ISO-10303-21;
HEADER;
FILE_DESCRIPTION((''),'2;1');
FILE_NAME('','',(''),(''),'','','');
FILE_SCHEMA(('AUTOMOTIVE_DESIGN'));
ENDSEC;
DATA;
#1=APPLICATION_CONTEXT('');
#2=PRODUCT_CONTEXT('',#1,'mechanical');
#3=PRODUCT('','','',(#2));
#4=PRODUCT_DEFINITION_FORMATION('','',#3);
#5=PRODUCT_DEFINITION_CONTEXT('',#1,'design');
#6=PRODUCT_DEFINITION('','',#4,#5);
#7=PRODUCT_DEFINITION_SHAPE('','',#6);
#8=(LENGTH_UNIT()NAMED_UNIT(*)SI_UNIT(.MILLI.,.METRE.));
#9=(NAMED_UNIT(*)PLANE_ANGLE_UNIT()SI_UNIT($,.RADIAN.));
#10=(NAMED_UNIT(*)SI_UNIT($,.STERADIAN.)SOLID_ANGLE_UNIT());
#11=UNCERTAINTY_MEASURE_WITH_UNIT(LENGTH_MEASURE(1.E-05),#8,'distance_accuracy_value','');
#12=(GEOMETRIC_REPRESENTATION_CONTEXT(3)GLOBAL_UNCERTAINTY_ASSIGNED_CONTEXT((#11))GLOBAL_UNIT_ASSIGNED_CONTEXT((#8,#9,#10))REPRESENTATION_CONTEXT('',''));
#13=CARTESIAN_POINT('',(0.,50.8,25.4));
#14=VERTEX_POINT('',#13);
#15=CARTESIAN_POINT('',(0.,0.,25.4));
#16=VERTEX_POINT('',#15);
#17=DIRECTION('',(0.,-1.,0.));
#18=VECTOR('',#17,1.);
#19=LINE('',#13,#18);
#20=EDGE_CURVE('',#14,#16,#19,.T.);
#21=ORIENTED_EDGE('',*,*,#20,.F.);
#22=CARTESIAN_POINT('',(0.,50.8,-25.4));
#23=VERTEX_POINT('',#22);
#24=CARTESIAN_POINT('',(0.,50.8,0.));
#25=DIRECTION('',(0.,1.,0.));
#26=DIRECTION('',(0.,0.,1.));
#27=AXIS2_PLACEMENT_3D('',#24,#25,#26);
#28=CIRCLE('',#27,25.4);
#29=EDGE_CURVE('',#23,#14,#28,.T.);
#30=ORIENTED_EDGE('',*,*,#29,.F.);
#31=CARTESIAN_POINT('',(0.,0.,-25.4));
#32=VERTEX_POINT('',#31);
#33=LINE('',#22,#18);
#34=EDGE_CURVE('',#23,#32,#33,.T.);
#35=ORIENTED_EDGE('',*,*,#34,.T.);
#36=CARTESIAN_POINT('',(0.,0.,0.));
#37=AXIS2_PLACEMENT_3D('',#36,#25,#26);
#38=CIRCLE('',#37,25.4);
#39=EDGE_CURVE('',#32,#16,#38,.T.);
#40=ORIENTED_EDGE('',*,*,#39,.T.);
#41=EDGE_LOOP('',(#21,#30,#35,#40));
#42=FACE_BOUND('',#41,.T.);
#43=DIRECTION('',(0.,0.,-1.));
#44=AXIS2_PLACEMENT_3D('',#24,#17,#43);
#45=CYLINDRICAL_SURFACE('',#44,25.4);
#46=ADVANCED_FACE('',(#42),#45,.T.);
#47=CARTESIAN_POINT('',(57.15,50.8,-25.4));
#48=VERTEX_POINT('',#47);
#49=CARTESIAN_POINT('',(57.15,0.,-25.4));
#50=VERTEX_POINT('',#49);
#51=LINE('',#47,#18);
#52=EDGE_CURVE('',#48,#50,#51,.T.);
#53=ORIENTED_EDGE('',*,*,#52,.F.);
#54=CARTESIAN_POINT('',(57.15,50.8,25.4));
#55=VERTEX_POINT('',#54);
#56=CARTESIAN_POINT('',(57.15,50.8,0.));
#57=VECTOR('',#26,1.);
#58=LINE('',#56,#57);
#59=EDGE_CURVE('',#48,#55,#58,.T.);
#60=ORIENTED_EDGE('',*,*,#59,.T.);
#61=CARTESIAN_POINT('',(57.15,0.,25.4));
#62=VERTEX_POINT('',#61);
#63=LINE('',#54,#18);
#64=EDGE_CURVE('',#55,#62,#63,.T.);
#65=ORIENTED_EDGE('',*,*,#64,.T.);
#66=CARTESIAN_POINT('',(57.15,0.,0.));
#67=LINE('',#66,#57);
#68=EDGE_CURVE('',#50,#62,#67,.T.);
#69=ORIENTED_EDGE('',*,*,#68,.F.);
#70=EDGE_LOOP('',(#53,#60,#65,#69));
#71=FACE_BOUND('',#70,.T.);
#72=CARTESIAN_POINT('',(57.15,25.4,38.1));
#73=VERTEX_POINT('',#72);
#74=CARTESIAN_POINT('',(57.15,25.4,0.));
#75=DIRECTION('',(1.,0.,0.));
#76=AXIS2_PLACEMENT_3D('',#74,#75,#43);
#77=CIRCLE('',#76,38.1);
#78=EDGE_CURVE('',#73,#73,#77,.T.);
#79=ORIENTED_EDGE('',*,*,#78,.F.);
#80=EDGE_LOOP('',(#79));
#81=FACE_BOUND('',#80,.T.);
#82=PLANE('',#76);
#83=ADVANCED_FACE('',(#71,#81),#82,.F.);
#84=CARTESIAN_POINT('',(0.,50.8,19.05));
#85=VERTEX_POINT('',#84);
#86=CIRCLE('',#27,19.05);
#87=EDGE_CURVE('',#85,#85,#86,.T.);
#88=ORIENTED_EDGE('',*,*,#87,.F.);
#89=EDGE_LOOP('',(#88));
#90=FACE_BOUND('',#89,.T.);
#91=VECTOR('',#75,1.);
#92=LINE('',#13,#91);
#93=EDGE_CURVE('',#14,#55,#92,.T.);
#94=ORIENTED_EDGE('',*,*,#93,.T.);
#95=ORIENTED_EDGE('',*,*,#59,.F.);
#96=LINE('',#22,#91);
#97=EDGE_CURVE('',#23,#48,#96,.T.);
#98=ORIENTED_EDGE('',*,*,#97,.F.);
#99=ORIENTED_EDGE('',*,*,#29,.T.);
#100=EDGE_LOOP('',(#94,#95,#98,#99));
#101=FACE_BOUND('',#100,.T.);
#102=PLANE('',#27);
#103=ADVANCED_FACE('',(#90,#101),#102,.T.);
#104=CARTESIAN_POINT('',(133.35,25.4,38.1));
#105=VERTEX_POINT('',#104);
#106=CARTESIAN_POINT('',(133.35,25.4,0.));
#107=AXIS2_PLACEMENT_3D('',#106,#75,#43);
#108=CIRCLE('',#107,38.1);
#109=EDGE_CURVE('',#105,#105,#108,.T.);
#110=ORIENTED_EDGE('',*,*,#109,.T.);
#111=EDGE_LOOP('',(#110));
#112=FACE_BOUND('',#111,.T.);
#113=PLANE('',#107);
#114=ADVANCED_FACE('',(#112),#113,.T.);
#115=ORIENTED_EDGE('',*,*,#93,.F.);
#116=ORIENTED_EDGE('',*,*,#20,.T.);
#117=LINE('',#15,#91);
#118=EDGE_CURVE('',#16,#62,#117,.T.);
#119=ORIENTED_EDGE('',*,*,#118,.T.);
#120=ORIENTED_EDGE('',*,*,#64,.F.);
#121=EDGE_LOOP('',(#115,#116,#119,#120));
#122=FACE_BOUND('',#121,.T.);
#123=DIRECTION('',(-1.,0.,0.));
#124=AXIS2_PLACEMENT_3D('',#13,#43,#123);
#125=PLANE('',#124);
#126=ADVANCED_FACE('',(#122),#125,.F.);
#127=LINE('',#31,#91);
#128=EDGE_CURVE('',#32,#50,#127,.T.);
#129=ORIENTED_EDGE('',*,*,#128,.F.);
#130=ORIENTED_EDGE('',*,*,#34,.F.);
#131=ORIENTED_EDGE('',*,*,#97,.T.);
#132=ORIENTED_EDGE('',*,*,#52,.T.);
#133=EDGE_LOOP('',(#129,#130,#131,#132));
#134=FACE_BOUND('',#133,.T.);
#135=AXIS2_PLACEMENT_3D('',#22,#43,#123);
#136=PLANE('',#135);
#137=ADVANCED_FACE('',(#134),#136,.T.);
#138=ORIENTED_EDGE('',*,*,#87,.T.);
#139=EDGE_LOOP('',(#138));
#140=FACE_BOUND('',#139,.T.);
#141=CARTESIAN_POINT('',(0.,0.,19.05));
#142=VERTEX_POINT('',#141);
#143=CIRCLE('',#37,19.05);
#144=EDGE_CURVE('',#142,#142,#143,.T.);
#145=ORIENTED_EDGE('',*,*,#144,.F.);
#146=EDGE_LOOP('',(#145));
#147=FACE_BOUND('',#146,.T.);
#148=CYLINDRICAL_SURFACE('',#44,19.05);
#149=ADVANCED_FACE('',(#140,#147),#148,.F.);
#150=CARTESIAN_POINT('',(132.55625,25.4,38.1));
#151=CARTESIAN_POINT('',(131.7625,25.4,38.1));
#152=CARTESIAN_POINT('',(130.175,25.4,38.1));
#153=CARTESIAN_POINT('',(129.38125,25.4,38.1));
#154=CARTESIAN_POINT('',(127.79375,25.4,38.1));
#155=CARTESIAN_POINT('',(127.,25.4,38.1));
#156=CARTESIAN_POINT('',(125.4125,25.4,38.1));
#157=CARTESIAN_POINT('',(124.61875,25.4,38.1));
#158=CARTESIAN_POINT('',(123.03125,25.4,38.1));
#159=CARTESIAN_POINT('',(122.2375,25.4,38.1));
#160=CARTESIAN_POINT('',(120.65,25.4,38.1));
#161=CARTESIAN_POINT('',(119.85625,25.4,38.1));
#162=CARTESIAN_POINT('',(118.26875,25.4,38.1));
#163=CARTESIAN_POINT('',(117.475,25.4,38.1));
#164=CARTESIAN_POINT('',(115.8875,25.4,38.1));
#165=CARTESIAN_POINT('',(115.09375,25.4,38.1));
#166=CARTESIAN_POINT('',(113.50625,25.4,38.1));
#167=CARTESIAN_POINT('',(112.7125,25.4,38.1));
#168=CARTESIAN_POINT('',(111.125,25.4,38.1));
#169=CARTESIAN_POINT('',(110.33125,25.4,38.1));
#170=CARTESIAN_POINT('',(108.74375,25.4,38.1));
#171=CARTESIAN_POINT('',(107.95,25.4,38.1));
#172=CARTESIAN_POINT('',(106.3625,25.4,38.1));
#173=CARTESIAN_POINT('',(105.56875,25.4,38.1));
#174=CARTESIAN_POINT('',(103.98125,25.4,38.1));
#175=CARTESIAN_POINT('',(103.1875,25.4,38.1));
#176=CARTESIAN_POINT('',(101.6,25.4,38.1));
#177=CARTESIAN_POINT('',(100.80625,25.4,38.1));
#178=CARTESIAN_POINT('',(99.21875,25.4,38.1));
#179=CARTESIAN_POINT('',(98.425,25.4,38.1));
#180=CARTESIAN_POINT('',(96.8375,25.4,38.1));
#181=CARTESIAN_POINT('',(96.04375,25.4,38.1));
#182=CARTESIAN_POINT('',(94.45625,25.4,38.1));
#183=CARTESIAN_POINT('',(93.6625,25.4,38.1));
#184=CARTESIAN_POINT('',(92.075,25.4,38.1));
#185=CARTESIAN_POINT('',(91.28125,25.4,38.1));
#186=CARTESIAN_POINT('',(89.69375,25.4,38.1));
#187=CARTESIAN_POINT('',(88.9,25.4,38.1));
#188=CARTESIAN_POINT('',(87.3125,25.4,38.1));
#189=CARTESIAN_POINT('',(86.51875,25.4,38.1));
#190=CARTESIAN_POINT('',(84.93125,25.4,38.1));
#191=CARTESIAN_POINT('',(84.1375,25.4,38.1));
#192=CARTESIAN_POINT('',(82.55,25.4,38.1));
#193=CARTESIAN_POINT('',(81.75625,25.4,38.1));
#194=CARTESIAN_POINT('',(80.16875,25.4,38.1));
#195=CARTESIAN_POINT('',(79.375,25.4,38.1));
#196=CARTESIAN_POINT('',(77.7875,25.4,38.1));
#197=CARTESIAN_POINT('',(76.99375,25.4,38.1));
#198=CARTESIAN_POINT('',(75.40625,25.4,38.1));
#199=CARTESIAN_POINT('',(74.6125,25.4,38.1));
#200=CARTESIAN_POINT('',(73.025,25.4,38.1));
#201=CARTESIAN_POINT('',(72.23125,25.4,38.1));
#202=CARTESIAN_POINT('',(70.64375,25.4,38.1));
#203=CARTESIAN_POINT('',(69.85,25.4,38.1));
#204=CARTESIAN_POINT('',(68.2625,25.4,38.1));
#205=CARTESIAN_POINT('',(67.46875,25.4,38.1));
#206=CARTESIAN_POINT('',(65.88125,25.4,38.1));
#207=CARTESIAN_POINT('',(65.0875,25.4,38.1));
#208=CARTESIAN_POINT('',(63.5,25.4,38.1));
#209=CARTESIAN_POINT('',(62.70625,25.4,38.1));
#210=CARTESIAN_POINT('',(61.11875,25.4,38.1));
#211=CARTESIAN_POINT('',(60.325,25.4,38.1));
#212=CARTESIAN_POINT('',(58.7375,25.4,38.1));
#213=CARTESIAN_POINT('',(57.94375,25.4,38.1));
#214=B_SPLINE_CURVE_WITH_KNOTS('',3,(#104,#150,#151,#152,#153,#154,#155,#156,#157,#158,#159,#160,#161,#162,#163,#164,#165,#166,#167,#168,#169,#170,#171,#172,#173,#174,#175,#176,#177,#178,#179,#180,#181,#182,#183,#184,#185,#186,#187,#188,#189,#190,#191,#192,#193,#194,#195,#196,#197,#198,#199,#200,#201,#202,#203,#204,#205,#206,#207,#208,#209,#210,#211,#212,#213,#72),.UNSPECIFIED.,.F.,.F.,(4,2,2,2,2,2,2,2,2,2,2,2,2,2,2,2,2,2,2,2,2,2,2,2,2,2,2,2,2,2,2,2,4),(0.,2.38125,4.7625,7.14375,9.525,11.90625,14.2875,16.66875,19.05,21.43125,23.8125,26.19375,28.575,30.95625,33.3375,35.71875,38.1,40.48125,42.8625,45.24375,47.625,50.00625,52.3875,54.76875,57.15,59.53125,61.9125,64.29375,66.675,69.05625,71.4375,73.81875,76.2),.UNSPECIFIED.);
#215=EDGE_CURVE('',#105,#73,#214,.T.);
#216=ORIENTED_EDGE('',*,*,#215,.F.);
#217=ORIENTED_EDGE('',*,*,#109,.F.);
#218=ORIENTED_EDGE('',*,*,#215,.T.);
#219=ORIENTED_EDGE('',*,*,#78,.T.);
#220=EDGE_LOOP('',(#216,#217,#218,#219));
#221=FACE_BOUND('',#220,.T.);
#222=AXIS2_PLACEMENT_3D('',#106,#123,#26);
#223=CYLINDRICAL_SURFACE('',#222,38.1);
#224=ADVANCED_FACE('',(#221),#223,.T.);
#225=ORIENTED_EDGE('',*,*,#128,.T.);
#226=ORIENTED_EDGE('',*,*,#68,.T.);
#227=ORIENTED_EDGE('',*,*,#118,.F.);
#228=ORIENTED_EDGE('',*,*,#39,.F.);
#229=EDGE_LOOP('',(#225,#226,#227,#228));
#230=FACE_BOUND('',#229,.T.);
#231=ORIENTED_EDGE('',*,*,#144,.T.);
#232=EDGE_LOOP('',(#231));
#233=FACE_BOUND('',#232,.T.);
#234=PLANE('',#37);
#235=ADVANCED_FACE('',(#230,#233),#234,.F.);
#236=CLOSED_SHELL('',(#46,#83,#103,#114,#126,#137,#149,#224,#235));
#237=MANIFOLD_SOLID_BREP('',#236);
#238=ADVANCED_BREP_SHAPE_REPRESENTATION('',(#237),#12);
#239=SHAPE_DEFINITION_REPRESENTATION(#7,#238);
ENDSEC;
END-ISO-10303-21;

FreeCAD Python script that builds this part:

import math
import FreeCAD as App
import Part
import Sketcher
Q = App.Units.Quantity

doc = App.newDocument("Part")
body = doc.addObject("PartDesign::Body", "Body")

sketch1 = body.newObject("Sketcher::SketchObject", "Sketch")
sketch1.AttachmentSupport = (doc.getObject("XZ_Plane"), [""])
sketch1.MapMode = "FlatFace"
sketch1.addGeometry(Part.LineSegment(App.Vector(0, 25.4, 0), App.Vector(57.15, 25.4, 0)), False)
sketch1.addGeometry(Part.LineSegment(App.Vector(57.15, 25.4, 0), App.Vector(57.15, -25.4, 0)), False)
sketch1.addGeometry(Part.LineSegment(App.Vector(57.15, -25.4, 0), App.Vector(0, -25.4, 0)), False)
sketch1.addGeometry(Part.ArcOfCircle(Part.Circle(App.Vector(0, 0, 0), App.Vector(0, 0, 1), 25.4), math.radians(90), math.radians(270)), False)
sketch1.addGeometry(Part.Circle(App.Vector(0, 0, 0), App.Vector(0, 0, 1), 19.05), False)
sketch1.addConstraint(Sketcher.Constraint("Coincident", 0, 2, 1, 1))
sketch1.addConstraint(Sketcher.Constraint("Coincident", 1, 2, 2, 1))
sketch1.addConstraint(Sketcher.Constraint("Tangent", 2, 2, 3, 2))
sketch1.addConstraint(Sketcher.Constraint("Tangent", 3, 1, 0, 1))
sketch1.addConstraint(Sketcher.Constraint("Horizontal", 0))
sketch1.addConstraint(Sketcher.Constraint("Vertical", 1))
sketch1.addConstraint(Sketcher.Constraint("Horizontal", 2))
sketch1.addConstraint(Sketcher.Constraint("Coincident", 3, 3, -1, 1))
sketch1.addConstraint(Sketcher.Constraint("Coincident", 4, 3, -1, 1))
sketch1.addConstraint(Sketcher.Constraint("Radius", 3, Q("1 in")))
sketch1.addConstraint(Sketcher.Constraint("Diameter", 4, Q("1.5 in")))
sketch1.addConstraint(Sketcher.Constraint("DistanceX", 0, 1, 0, 2, Q("2.25 in")))
pad1 = body.newObject("PartDesign::Pad", "Pad")
pad1.Profile = sketch1
pad1.Length = Q("2 in")
pad1.Reversed = True

sketch2 = body.newObject("Sketcher::SketchObject", "Sketch001")
sketch2.AttachmentSupport = (doc.getObject("YZ_Plane"), [""])
sketch2.MapMode = "FlatFace"
sketch2.AttachmentOffset = App.Placement(App.Vector(0, 0, 2.25 * 25.4), App.Rotation())
sketch2.addGeometry(Part.Circle(App.Vector(25.4, 0, 0), App.Vector(0, 0, 1), 38.1), False)
sketch2.addConstraint(Sketcher.Constraint("PointOnObject", 0, 3, -1))
sketch2.addConstraint(Sketcher.Constraint("Diameter", 0, Q("3 in")))
sketch2.addConstraint(Sketcher.Constraint("DistanceX", -1, 1, 0, 3, Q("1 in")))
pad2 = body.newObject("PartDesign::Pad", "Pad001")
pad2.Profile = sketch2
pad2.Length = Q("3 in")

doc.recompute()
